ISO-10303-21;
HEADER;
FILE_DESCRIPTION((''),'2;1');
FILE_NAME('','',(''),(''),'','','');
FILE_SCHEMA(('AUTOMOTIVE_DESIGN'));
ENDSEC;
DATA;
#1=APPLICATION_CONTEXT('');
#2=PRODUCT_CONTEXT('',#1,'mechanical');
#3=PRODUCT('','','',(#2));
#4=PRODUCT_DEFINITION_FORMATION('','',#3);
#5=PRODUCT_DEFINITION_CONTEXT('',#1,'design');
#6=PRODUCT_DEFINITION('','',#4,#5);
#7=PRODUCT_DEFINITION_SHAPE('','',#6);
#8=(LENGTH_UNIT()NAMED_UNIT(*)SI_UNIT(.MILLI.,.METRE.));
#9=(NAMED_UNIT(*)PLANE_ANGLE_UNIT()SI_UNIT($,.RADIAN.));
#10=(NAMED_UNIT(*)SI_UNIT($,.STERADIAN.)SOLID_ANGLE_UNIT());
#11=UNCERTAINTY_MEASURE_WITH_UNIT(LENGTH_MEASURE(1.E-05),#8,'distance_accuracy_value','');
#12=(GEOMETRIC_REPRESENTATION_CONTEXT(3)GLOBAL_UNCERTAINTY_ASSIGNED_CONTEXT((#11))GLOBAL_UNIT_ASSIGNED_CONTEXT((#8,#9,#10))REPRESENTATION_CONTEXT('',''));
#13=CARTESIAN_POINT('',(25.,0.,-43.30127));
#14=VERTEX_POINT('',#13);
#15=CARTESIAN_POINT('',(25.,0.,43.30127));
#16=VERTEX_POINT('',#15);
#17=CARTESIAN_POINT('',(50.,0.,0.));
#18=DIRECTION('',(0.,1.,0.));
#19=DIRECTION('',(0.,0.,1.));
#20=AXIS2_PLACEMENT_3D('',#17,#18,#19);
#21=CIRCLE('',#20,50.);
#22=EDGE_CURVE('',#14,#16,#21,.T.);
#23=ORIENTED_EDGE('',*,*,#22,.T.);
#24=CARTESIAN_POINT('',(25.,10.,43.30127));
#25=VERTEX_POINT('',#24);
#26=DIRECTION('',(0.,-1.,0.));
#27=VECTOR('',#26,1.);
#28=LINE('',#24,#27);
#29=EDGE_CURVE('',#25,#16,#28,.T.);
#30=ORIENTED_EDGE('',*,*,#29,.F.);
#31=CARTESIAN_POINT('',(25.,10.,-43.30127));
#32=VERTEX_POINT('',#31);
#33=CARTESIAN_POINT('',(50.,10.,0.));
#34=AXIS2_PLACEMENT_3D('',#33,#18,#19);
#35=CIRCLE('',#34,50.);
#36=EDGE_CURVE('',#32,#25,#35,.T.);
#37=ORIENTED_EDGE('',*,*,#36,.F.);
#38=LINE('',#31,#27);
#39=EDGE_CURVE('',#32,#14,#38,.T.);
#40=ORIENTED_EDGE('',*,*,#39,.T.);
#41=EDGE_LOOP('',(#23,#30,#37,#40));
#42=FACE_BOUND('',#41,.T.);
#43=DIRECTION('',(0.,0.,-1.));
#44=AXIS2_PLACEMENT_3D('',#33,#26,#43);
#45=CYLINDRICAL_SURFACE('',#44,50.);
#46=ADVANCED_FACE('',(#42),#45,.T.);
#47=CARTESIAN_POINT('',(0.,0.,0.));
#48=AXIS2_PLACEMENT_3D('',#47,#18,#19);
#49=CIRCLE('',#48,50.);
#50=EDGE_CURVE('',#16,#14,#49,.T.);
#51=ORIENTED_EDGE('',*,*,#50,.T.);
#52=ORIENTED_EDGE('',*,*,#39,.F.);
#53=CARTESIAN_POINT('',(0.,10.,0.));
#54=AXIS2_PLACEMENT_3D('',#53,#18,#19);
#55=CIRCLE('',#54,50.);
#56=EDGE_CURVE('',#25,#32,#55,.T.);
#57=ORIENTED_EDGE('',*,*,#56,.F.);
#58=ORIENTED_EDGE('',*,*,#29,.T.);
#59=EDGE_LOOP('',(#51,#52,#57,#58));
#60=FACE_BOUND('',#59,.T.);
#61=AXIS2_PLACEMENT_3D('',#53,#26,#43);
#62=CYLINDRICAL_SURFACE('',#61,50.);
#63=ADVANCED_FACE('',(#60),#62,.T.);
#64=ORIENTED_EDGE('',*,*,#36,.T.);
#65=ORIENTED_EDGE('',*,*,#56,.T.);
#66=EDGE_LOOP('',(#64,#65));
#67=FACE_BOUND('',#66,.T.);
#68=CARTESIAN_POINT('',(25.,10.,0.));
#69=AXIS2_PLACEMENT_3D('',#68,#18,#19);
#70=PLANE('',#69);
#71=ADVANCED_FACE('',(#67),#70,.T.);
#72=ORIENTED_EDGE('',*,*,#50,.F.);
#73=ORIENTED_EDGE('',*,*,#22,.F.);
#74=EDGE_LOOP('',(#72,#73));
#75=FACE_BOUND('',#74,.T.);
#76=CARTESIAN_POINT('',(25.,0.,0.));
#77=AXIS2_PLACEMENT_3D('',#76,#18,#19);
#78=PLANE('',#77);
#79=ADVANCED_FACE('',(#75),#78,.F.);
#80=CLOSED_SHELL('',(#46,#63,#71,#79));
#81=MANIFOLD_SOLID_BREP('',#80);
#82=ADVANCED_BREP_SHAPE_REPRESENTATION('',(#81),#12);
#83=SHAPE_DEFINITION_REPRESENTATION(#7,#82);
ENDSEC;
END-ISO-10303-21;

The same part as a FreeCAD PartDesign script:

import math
import FreeCAD as App
import Part
import Sketcher

V = App.Vector

doc = App.newDocument("Part")
params = doc.addObject("Spreadsheet::Sheet", "Params")
for row, (alias, value) in enumerate([
    ("sketch1_radius", "50 mm"),
    ("pad1_length", "10 mm"),
], start=1):
    params.set(f"A{row}", alias)
    params.set(f"B{row}", "=" + value)
    params.setAlias(f"B{row}", alias)

body = doc.addObject("PartDesign::Body", "Body")

# Sketch on XZ plane
sketch1 = body.newObject("Sketcher::SketchObject", "Sketch")
sketch1.AttachmentSupport = (doc.getObject("XZ_Plane"), [""])
sketch1.MapMode = "FlatFace"
sketch1.addGeometry(Part.ArcOfCircle(Part.Circle(V(0, 0, 0), V(0, 0, 1), 50), math.radians(-60), math.radians(60)), False)
sketch1.addGeometry(Part.ArcOfCircle(Part.Circle(V(50, 0, 0), V(0, 0, 1), 50), math.radians(120), math.radians(240)), False)
sketch1.addConstraint(Sketcher.Constraint("Coincident", 0, 1, 1, 2))
sketch1.addConstraint(Sketcher.Constraint("Coincident", 1, 1, 0, 2))
sketch1.addConstraint(Sketcher.Constraint("Coincident", 0, 3, -1, 1))
sketch1.addConstraint(Sketcher.Constraint("Equal", 0, 1))
sketch1.addConstraint(Sketcher.Constraint("PointOnObject", 1, 3, -1))
sketch1.addConstraint(Sketcher.Constraint("Radius", 0, 50.0))
sketch1.addConstraint(Sketcher.Constraint("DistanceX", -1, 1, 1, 3, 50.0))
sketch1.setExpression("Constraints[5]", "Params.sketch1_radius")
pad1 = body.newObject("PartDesign::Pad", "Pad")
pad1.Profile = sketch1
pad1.setExpression("Length", "Params.pad1_length")
pad1.Reversed = True

doc.recompute()
